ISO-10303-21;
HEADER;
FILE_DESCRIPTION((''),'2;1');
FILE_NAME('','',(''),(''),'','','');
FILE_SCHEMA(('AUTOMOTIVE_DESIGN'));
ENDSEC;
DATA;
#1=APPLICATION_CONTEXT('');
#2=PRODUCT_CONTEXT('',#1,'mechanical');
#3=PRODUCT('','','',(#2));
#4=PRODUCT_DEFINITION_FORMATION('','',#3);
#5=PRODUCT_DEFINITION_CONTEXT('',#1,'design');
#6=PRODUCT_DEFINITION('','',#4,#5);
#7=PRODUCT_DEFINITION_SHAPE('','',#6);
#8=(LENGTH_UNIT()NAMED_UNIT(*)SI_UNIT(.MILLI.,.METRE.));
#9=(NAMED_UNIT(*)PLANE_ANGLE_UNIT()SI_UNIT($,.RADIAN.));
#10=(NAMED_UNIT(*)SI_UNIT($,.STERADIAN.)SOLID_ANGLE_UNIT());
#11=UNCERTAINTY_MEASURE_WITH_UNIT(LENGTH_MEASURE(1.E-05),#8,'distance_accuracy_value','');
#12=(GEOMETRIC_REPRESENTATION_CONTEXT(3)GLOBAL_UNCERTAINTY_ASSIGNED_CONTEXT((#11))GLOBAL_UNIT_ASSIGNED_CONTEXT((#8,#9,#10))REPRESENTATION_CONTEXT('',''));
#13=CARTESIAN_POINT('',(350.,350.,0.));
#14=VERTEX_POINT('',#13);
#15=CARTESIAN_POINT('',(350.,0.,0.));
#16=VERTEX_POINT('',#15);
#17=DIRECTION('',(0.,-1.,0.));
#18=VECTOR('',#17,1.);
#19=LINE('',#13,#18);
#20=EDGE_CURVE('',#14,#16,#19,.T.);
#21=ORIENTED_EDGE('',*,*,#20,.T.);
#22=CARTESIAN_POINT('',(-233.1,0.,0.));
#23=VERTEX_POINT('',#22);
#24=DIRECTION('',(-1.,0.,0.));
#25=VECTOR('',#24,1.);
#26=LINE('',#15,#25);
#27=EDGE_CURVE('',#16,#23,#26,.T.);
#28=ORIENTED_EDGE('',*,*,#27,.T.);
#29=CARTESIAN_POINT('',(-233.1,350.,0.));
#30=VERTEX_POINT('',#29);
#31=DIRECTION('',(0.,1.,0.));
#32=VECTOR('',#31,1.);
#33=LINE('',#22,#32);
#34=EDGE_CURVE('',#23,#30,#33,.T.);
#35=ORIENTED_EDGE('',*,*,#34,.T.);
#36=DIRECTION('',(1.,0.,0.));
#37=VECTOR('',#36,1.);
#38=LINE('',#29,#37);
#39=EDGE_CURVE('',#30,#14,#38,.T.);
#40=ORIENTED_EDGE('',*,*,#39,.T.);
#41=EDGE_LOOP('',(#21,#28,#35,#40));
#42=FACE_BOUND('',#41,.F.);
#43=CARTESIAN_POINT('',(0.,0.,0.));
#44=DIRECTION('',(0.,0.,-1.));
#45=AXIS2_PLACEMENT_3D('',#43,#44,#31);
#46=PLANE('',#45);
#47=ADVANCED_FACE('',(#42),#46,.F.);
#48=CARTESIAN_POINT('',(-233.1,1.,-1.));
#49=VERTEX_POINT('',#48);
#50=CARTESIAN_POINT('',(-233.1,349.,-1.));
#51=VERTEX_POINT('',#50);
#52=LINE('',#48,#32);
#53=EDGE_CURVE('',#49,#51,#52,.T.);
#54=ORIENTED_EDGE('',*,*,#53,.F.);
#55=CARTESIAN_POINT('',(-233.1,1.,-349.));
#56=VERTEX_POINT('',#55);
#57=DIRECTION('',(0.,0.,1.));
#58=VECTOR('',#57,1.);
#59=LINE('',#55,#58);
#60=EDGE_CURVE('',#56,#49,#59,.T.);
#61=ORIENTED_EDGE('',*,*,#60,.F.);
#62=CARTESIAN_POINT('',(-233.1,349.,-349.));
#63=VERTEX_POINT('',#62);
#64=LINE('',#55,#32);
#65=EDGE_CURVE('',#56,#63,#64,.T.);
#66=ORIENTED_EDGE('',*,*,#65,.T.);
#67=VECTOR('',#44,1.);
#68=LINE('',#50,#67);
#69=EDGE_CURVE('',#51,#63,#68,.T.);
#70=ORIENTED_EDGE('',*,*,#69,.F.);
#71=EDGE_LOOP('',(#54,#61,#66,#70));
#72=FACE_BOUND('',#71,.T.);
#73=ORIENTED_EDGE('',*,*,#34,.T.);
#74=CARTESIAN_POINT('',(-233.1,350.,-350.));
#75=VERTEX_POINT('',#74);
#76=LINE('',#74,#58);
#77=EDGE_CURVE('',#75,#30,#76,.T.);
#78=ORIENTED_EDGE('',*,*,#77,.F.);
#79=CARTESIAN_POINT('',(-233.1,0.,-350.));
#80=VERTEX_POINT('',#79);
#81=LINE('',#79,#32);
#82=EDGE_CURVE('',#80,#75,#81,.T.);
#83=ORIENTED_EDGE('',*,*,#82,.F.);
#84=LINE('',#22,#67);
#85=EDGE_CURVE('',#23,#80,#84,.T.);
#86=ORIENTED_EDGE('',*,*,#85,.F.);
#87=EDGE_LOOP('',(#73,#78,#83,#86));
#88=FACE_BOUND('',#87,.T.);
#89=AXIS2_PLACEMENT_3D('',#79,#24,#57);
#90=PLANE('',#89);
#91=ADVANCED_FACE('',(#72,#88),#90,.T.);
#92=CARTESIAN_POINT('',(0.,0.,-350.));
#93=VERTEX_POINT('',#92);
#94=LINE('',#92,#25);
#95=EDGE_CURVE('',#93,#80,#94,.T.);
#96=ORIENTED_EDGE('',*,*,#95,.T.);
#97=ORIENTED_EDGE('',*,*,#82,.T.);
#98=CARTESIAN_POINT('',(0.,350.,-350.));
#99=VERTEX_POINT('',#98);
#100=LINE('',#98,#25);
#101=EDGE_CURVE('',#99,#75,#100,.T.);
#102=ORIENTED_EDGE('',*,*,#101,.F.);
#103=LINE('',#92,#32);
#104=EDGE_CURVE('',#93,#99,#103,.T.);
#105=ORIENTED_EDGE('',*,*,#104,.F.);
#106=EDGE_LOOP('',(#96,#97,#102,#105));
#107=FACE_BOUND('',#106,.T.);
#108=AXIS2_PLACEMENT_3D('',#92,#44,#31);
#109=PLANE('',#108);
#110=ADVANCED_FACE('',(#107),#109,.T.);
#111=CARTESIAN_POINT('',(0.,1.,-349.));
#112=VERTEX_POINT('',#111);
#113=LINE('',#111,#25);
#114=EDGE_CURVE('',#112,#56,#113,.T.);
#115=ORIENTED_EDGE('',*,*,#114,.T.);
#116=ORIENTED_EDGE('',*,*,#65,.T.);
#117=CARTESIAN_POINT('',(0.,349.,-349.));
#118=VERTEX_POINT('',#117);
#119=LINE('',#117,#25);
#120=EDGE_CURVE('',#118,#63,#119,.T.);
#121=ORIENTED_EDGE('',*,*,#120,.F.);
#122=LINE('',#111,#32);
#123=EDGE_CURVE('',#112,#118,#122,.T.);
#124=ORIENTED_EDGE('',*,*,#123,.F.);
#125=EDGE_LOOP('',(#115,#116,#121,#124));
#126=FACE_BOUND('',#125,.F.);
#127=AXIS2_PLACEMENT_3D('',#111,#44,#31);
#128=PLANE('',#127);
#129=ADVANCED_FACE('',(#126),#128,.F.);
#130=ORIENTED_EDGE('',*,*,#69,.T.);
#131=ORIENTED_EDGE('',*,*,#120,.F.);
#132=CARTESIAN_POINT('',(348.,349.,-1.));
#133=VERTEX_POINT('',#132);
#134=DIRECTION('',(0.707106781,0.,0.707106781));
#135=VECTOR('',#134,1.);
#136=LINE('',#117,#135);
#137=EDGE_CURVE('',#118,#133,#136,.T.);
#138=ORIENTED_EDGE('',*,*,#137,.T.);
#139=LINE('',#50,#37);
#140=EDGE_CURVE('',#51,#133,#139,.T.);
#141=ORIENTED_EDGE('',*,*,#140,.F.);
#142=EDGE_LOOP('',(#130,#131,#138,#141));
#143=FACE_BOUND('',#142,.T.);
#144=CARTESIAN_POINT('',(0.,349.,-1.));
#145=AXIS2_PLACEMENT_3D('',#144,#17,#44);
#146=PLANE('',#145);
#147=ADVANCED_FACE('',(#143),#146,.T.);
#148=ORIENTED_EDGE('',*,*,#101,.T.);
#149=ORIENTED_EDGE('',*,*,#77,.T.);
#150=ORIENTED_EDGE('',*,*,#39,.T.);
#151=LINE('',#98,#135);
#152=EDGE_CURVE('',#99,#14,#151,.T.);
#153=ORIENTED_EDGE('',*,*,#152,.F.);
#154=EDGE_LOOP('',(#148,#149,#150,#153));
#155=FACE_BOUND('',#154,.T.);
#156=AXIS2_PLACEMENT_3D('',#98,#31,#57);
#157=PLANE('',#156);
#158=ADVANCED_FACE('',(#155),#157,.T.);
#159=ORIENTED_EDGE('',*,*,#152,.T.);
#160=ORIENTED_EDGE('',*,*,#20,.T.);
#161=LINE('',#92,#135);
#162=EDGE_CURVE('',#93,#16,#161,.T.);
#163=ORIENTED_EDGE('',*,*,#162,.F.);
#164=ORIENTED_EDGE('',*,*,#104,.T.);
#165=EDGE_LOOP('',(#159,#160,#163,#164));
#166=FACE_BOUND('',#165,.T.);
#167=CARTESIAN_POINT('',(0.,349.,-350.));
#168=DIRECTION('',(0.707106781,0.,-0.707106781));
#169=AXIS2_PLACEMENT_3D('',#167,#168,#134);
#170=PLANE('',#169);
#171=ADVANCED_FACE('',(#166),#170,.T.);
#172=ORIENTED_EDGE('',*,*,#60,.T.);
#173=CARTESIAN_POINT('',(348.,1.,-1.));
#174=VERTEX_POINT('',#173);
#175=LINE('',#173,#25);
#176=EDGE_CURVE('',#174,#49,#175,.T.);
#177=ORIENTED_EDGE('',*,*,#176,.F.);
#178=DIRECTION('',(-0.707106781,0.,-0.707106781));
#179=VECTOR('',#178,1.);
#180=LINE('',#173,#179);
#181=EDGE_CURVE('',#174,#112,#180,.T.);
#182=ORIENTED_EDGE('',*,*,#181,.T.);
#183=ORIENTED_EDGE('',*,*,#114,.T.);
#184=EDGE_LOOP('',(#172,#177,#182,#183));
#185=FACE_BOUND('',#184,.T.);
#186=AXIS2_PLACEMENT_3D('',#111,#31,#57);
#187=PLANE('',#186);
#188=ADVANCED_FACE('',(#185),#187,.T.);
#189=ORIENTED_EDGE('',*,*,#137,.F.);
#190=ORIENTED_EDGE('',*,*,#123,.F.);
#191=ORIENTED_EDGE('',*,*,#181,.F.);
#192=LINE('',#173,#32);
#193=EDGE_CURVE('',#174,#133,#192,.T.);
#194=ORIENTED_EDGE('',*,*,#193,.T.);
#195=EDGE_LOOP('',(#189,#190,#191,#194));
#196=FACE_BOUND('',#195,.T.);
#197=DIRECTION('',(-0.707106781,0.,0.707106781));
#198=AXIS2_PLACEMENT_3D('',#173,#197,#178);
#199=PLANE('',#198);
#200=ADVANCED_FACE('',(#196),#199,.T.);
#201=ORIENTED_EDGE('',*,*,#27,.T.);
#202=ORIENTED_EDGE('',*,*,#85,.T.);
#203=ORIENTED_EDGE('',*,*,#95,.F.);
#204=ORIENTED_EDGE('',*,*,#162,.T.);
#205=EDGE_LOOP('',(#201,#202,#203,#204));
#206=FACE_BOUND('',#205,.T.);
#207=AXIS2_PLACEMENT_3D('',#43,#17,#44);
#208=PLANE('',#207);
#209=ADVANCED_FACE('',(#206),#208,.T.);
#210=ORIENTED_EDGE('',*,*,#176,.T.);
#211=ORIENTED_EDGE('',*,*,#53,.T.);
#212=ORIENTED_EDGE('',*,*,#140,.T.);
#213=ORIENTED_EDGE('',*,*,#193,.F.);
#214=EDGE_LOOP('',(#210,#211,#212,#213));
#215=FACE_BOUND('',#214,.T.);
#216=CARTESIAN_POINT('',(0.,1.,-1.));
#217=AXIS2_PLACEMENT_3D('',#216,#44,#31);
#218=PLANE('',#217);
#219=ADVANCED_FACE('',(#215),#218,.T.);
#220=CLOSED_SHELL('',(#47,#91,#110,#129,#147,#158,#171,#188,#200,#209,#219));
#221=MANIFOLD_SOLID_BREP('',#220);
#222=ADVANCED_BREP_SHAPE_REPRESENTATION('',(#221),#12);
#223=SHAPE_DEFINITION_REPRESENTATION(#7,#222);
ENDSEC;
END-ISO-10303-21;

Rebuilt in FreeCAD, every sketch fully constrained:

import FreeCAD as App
import Part
import Sketcher
from FreeCAD import Vector
Q = App.Units.Quantity

doc = App.newDocument("Part")
params = doc.addObject("Spreadsheet::Sheet", "Params")
for row, (alias, value) in enumerate([
    ("sketch1_width", "350 mm"),
    ("pad1_length", "1 mm"),
    ("sketch2_height", "1 mm"),
    ("sketch2_width", "348 mm"),
    ("sketch2_width2", "350 mm"),
    ("pad2_length", "348 mm"),
    ("sketch3_width", "350 mm"),
    ("pad3_length", "1 mm"),
    ("sketch4_width", "350 mm"),
    ("sketch4_width2", "348 mm"),
    ("pad4_length", "233.1 mm"),
], start=1):
    params.set(f"A{row}", alias)
    params.set(f"B{row}", "=" + value)
    params.setAlias(f"B{row}", alias)

body = doc.addObject("PartDesign::Body", "Body")

sketch1 = doc.addObject("Sketcher::SketchObject", "Sketch")
body.addObject(sketch1)
sketch1.AttachmentSupport = (doc.XZ_Plane, [""])
sketch1.MapMode = "FlatFace"
sketch1.addGeometry([
    Part.LineSegment(Vector(0, -350, 0), Vector(0, 0, 0)),
    Part.LineSegment(Vector(0, 0, 0), Vector(350, 0, 0)),
    Part.LineSegment(Vector(350, 0, 0), Vector(0, -350, 0)),
], False)
sketch1.addConstraint([
    Sketcher.Constraint("Coincident", 0, 2, 1, 1),
    Sketcher.Constraint("Coincident", 1, 2, 2, 1),
    Sketcher.Constraint("Coincident", 2, 2, 0, 1),
    Sketcher.Constraint("Vertical", 0),
    Sketcher.Constraint("Horizontal", 1),
    Sketcher.Constraint("Coincident", 0, 2, -1, 1),
    Sketcher.Constraint("Equal", 1, 0),
    Sketcher.Constraint("DistanceX", 1, 1, 1, 2, Q("350 mm")),
])
sketch1.setExpression("Constraints[7]", "Params.sketch1_width")
pad1 = doc.addObject("PartDesign::Pad", "Pad")
body.addObject(pad1)
pad1.Profile = sketch1
pad1.setExpression("Length", "Params.pad1_length")
pad1.Reversed = True

sketch2 = doc.addObject("Sketcher::SketchObject", "Sketch001")
body.addObject(sketch2)
sketch2.AttachmentSupport = (doc.XZ_Plane, [""])
sketch2.MapMode = "FlatFace"
sketch2.AttachmentOffset = App.Placement(Vector(0, 0, -1), App.Rotation())
sketch2.addGeometry([
    Part.LineSegment(Vector(350, 0, 0), Vector(0, -350, 0)),
    Part.LineSegment(Vector(0, -350, 0), Vector(0, -349, 0)),
    Part.LineSegment(Vector(0, -349, 0), Vector(348, -1, 0)),
    Part.LineSegment(Vector(348, -1, 0), Vector(0, -1, 0)),
    Part.LineSegment(Vector(0, -1, 0), Vector(0, 0, 0)),
    Part.LineSegment(Vector(0, 0, 0), Vector(350, 0, 0)),
], False)
sketch2.addConstraint([
    Sketcher.Constraint("Coincident", 0, 2, 1, 1),
    Sketcher.Constraint("Coincident", 1, 2, 2, 1),
    Sketcher.Constraint("Coincident", 2, 2, 3, 1),
    Sketcher.Constraint("Coincident", 3, 2, 4, 1),
    Sketcher.Constraint("Coincident", 4, 2, 5, 1),
    Sketcher.Constraint("Coincident", 5, 2, 0, 1),
    Sketcher.Constraint("Vertical", 1),
    Sketcher.Constraint("Horizontal", 3),
    Sketcher.Constraint("Vertical", 4),
    Sketcher.Constraint("Horizontal", 5),
    Sketcher.Constraint("Coincident", 4, 2, -1, 1),
    Sketcher.Constraint("PointOnObject", 0, 2, -2),
    Sketcher.Constraint("Parallel", 0, 2),
    Sketcher.Constraint("Equal", 1, 4),
    Sketcher.Constraint("DistanceY", 1, 1, 1, 2, Q("1 mm")),
    Sketcher.Constraint("DistanceX", 3, 2, 3, 1, Q("348 mm")),
    Sketcher.Constraint("DistanceX", 5, 1, 5, 2, Q("350 mm")),
])
sketch2.setExpression("Constraints[14]", "Params.sketch2_height")
sketch2.setExpression("Constraints[15]", "Params.sketch2_width")
sketch2.setExpression("Constraints[16]", "Params.sketch2_width2")
pad2 = doc.addObject("PartDesign::Pad", "Pad001")
body.addObject(pad2)
pad2.Profile = sketch2
pad2.setExpression("Length", "Params.pad2_length")
pad2.Reversed = True

sketch3 = doc.addObject("Sketcher::SketchObject", "Sketch002")
body.addObject(sketch3)
sketch3.AttachmentSupport = (doc.XZ_Plane, [""])
sketch3.MapMode = "FlatFace"
sketch3.AttachmentOffset = App.Placement(Vector(0, 0, -349), App.Rotation())
sketch3.addGeometry([
    Part.LineSegment(Vector(350, 0, 0), Vector(0, -350, 0)),
    Part.LineSegment(Vector(0, -350, 0), Vector(0, 0, 0)),
    Part.LineSegment(Vector(0, 0, 0), Vector(350, 0, 0)),
], False)
sketch3.addConstraint([
    Sketcher.Constraint("Coincident", 0, 2, 1, 1),
    Sketcher.Constraint("Coincident", 1, 2, 2, 1),
    Sketcher.Constraint("Coincident", 2, 2, 0, 1),
    Sketcher.Constraint("Vertical", 1),
    Sketcher.Constraint("Horizontal", 2),
    Sketcher.Constraint("Coincident", 1, 2, -1, 1),
    Sketcher.Constraint("Equal", 2, 1),
    Sketcher.Constraint("DistanceX", 2, 1, 2, 2, Q("350 mm")),
])
sketch3.setExpression("Constraints[7]", "Params.sketch3_width")
pad3 = doc.addObject("PartDesign::Pad", "Pad002")
body.addObject(pad3)
pad3.Profile = sketch3
pad3.setExpression("Length", "Params.pad3_length")
pad3.Reversed = True

sketch4 = doc.addObject("Sketcher::SketchObject", "Sketch003")
body.addObject(sketch4)
sketch4.AttachmentSupport = (doc.YZ_Plane, [""])
sketch4.MapMode = "FlatFace"
sketch4.addGeometry([
    Part.LineSegment(Vector(350, -350, 0), Vector(0, -350, 0)),
    Part.LineSegment(Vector(0, -350, 0), Vector(0, 0, 0)),
    Part.LineSegment(Vector(0, 0, 0), Vector(350, 0, 0)),
    Part.LineSegment(Vector(350, 0, 0), Vector(350, -350, 0)),
    Part.LineSegment(Vector(349, -1, 0), Vector(1, -1, 0)),
    Part.LineSegment(Vector(1, -1, 0), Vector(1, -349, 0)),
    Part.LineSegment(Vector(1, -349, 0), Vector(349, -349, 0)),
    Part.LineSegment(Vector(349, -349, 0), Vector(349, -1, 0)),
], False)
sketch4.addConstraint([
    Sketcher.Constraint("Coincident", 0, 2, 1, 1),
    Sketcher.Constraint("Coincident", 1, 2, 2, 1),
    Sketcher.Constraint("Coincident", 2, 2, 3, 1),
    Sketcher.Constraint("Coincident", 3, 2, 0, 1),
    Sketcher.Constraint("Coincident", 4, 2, 5, 1),
    Sketcher.Constraint("Coincident", 5, 2, 6, 1),
    Sketcher.Constraint("Coincident", 6, 2, 7, 1),
    Sketcher.Constraint("Coincident", 7, 2, 4, 1),
    Sketcher.Constraint("Horizontal", 0),
    Sketcher.Constraint("Vertical", 1),
    Sketcher.Constraint("Horizontal", 2),
    Sketcher.Constraint("Vertical", 3),
    Sketcher.Constraint("Horizontal", 4),
    Sketcher.Constraint("Vertical", 5),
    Sketcher.Constraint("Horizontal", 6),
    Sketcher.Constraint("Vertical", 7),
    Sketcher.Constraint("Coincident", 1, 2, -1, 1),
    Sketcher.Constraint("Equal", 2, 1),
    Sketcher.Constraint("Equal", 6, 5),
    Sketcher.Constraint("DistanceX", 0, 2, 0, 1, Q("350 mm")),
    Sketcher.Constraint("DistanceX", 4, 2, 4, 1, Q("348 mm")),
    Sketcher.Constraint("DistanceX", -1, 1, 4, 2, Q("1 mm")),
    Sketcher.Constraint("DistanceY", 4, 2, -1, 1, Q("1 mm")),
])
sketch4.setExpression("Constraints[19]", "Params.sketch4_width")
sketch4.setExpression("Constraints[20]", "Params.sketch4_width2")
pad4 = doc.addObject("PartDesign::Pad", "Pad003")
body.addObject(pad4)
pad4.Profile = sketch4
pad4.setExpression("Length", "Params.pad4_length")
pad4.Reversed = True

doc.recompute()
